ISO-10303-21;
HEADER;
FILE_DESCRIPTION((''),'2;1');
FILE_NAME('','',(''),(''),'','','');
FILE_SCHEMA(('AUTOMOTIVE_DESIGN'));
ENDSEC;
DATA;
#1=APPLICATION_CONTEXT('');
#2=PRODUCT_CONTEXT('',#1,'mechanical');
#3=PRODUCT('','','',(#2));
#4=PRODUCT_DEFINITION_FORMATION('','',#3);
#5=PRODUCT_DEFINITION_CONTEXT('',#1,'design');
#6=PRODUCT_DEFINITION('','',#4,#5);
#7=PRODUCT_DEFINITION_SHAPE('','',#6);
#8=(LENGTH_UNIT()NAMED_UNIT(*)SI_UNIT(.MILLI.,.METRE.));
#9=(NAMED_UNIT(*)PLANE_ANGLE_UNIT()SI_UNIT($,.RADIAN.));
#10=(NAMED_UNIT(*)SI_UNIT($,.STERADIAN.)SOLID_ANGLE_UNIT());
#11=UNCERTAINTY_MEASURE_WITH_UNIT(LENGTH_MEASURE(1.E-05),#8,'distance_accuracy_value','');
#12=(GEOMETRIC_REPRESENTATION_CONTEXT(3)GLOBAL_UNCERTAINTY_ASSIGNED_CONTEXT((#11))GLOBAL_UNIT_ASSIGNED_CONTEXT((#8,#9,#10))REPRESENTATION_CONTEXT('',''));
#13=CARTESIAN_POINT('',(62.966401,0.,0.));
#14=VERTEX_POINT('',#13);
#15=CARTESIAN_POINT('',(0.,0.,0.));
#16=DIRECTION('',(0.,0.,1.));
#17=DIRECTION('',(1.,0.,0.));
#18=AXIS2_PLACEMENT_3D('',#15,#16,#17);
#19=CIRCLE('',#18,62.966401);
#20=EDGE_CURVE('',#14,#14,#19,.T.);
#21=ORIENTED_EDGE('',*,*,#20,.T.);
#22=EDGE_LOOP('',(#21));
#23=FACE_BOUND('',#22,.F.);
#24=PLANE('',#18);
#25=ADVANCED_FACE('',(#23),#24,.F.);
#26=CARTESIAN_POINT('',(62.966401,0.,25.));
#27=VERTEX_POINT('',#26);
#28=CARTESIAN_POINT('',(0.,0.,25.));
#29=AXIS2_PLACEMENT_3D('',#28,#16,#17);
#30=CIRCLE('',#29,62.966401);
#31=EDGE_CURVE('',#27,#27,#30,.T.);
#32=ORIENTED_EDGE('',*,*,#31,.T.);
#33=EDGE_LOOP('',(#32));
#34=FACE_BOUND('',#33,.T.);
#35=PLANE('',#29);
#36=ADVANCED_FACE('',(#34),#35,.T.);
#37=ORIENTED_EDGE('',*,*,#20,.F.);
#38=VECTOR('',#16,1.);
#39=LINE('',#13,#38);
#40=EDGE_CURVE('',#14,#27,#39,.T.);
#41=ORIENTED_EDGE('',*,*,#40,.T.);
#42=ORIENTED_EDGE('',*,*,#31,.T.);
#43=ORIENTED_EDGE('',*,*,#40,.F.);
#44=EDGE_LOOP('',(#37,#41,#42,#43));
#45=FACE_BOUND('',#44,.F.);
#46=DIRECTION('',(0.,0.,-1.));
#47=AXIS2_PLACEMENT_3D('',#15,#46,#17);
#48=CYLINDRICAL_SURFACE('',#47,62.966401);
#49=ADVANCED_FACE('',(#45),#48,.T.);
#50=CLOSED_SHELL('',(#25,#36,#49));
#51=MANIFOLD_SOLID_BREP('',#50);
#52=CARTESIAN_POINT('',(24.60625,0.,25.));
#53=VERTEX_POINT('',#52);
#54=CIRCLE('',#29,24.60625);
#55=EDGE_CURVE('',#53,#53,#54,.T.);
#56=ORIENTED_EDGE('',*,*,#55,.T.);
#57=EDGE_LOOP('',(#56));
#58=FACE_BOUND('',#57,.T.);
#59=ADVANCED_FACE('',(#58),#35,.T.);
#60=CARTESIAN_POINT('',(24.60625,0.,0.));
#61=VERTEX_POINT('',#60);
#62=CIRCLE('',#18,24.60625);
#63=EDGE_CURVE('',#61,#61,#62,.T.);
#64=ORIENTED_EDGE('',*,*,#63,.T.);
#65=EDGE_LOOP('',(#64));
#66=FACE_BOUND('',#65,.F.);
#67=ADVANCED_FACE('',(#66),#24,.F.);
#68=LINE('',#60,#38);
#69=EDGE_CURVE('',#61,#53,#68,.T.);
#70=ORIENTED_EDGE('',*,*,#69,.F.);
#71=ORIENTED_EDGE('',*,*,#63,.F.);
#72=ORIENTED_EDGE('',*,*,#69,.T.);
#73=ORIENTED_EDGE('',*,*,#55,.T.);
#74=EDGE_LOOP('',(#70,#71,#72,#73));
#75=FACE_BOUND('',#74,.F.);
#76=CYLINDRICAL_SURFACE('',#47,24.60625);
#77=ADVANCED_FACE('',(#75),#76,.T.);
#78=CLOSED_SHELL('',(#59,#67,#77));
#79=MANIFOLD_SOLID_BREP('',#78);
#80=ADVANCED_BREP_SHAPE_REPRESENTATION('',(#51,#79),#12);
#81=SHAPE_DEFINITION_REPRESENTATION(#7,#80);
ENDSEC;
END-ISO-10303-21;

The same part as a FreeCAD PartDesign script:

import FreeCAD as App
import Part
import Sketcher
from FreeCAD import Vector

doc = App.newDocument("Part")
params = doc.addObject("Spreadsheet::Sheet", "Params")
for row, (alias, value) in enumerate([
    ("pad1_length", "25 mm"),
    ("pad2_length", "25 mm"),
], start=1):
    params.set(f"A{row}", alias)
    params.set(f"B{row}", "=" + value)
    params.setAlias(f"B{row}", alias)

body = doc.addObject("PartDesign::Body", "Body")

sketch1 = doc.addObject("Sketcher::SketchObject", "Sketch")
body.addObject(sketch1)
sketch1.AttachmentSupport = (doc.XY_Plane, [""])
sketch1.MapMode = "FlatFace"
sketch1.addGeometry(Part.Circle(Vector(0, 0, 0), Vector(0, 0, 1), 25), False)
sketch1.addConstraint(Sketcher.Constraint("Coincident", 0, 3, -1, 1))
sketch1.addConstraint(Sketcher.Constraint("Diameter", 0, 49.2125))
pad1 = doc.addObject("PartDesign::Pad", "Pad")
body.addObject(pad1)
pad1.Profile = sketch1
pad1.setExpression("Length", "Params.pad1_length")
body2 = doc.addObject("PartDesign::Body", "Body001")

sketch2 = doc.addObject("Sketcher::SketchObject", "Sketch001")
body2.addObject(sketch2)
sketch2.AttachmentSupport = (doc.getObject("XY_Plane001"), [""])
sketch2.MapMode = "FlatFace"
sketch2.addGeometry(Part.Circle(Vector(0, 0, 0), Vector(0, 0, 1), 63), False)
sketch2.addConstraint(Sketcher.Constraint("Coincident", 0, 3, -1, 1))
sketch2.addConstraint(Sketcher.Constraint("Diameter", 0, 125.932801))
pad2 = doc.addObject("PartDesign::Pad", "Pad001")
body2.addObject(pad2)
pad2.Profile = sketch2
pad2.setExpression("Length", "Params.pad2_length")

doc.recompute()
